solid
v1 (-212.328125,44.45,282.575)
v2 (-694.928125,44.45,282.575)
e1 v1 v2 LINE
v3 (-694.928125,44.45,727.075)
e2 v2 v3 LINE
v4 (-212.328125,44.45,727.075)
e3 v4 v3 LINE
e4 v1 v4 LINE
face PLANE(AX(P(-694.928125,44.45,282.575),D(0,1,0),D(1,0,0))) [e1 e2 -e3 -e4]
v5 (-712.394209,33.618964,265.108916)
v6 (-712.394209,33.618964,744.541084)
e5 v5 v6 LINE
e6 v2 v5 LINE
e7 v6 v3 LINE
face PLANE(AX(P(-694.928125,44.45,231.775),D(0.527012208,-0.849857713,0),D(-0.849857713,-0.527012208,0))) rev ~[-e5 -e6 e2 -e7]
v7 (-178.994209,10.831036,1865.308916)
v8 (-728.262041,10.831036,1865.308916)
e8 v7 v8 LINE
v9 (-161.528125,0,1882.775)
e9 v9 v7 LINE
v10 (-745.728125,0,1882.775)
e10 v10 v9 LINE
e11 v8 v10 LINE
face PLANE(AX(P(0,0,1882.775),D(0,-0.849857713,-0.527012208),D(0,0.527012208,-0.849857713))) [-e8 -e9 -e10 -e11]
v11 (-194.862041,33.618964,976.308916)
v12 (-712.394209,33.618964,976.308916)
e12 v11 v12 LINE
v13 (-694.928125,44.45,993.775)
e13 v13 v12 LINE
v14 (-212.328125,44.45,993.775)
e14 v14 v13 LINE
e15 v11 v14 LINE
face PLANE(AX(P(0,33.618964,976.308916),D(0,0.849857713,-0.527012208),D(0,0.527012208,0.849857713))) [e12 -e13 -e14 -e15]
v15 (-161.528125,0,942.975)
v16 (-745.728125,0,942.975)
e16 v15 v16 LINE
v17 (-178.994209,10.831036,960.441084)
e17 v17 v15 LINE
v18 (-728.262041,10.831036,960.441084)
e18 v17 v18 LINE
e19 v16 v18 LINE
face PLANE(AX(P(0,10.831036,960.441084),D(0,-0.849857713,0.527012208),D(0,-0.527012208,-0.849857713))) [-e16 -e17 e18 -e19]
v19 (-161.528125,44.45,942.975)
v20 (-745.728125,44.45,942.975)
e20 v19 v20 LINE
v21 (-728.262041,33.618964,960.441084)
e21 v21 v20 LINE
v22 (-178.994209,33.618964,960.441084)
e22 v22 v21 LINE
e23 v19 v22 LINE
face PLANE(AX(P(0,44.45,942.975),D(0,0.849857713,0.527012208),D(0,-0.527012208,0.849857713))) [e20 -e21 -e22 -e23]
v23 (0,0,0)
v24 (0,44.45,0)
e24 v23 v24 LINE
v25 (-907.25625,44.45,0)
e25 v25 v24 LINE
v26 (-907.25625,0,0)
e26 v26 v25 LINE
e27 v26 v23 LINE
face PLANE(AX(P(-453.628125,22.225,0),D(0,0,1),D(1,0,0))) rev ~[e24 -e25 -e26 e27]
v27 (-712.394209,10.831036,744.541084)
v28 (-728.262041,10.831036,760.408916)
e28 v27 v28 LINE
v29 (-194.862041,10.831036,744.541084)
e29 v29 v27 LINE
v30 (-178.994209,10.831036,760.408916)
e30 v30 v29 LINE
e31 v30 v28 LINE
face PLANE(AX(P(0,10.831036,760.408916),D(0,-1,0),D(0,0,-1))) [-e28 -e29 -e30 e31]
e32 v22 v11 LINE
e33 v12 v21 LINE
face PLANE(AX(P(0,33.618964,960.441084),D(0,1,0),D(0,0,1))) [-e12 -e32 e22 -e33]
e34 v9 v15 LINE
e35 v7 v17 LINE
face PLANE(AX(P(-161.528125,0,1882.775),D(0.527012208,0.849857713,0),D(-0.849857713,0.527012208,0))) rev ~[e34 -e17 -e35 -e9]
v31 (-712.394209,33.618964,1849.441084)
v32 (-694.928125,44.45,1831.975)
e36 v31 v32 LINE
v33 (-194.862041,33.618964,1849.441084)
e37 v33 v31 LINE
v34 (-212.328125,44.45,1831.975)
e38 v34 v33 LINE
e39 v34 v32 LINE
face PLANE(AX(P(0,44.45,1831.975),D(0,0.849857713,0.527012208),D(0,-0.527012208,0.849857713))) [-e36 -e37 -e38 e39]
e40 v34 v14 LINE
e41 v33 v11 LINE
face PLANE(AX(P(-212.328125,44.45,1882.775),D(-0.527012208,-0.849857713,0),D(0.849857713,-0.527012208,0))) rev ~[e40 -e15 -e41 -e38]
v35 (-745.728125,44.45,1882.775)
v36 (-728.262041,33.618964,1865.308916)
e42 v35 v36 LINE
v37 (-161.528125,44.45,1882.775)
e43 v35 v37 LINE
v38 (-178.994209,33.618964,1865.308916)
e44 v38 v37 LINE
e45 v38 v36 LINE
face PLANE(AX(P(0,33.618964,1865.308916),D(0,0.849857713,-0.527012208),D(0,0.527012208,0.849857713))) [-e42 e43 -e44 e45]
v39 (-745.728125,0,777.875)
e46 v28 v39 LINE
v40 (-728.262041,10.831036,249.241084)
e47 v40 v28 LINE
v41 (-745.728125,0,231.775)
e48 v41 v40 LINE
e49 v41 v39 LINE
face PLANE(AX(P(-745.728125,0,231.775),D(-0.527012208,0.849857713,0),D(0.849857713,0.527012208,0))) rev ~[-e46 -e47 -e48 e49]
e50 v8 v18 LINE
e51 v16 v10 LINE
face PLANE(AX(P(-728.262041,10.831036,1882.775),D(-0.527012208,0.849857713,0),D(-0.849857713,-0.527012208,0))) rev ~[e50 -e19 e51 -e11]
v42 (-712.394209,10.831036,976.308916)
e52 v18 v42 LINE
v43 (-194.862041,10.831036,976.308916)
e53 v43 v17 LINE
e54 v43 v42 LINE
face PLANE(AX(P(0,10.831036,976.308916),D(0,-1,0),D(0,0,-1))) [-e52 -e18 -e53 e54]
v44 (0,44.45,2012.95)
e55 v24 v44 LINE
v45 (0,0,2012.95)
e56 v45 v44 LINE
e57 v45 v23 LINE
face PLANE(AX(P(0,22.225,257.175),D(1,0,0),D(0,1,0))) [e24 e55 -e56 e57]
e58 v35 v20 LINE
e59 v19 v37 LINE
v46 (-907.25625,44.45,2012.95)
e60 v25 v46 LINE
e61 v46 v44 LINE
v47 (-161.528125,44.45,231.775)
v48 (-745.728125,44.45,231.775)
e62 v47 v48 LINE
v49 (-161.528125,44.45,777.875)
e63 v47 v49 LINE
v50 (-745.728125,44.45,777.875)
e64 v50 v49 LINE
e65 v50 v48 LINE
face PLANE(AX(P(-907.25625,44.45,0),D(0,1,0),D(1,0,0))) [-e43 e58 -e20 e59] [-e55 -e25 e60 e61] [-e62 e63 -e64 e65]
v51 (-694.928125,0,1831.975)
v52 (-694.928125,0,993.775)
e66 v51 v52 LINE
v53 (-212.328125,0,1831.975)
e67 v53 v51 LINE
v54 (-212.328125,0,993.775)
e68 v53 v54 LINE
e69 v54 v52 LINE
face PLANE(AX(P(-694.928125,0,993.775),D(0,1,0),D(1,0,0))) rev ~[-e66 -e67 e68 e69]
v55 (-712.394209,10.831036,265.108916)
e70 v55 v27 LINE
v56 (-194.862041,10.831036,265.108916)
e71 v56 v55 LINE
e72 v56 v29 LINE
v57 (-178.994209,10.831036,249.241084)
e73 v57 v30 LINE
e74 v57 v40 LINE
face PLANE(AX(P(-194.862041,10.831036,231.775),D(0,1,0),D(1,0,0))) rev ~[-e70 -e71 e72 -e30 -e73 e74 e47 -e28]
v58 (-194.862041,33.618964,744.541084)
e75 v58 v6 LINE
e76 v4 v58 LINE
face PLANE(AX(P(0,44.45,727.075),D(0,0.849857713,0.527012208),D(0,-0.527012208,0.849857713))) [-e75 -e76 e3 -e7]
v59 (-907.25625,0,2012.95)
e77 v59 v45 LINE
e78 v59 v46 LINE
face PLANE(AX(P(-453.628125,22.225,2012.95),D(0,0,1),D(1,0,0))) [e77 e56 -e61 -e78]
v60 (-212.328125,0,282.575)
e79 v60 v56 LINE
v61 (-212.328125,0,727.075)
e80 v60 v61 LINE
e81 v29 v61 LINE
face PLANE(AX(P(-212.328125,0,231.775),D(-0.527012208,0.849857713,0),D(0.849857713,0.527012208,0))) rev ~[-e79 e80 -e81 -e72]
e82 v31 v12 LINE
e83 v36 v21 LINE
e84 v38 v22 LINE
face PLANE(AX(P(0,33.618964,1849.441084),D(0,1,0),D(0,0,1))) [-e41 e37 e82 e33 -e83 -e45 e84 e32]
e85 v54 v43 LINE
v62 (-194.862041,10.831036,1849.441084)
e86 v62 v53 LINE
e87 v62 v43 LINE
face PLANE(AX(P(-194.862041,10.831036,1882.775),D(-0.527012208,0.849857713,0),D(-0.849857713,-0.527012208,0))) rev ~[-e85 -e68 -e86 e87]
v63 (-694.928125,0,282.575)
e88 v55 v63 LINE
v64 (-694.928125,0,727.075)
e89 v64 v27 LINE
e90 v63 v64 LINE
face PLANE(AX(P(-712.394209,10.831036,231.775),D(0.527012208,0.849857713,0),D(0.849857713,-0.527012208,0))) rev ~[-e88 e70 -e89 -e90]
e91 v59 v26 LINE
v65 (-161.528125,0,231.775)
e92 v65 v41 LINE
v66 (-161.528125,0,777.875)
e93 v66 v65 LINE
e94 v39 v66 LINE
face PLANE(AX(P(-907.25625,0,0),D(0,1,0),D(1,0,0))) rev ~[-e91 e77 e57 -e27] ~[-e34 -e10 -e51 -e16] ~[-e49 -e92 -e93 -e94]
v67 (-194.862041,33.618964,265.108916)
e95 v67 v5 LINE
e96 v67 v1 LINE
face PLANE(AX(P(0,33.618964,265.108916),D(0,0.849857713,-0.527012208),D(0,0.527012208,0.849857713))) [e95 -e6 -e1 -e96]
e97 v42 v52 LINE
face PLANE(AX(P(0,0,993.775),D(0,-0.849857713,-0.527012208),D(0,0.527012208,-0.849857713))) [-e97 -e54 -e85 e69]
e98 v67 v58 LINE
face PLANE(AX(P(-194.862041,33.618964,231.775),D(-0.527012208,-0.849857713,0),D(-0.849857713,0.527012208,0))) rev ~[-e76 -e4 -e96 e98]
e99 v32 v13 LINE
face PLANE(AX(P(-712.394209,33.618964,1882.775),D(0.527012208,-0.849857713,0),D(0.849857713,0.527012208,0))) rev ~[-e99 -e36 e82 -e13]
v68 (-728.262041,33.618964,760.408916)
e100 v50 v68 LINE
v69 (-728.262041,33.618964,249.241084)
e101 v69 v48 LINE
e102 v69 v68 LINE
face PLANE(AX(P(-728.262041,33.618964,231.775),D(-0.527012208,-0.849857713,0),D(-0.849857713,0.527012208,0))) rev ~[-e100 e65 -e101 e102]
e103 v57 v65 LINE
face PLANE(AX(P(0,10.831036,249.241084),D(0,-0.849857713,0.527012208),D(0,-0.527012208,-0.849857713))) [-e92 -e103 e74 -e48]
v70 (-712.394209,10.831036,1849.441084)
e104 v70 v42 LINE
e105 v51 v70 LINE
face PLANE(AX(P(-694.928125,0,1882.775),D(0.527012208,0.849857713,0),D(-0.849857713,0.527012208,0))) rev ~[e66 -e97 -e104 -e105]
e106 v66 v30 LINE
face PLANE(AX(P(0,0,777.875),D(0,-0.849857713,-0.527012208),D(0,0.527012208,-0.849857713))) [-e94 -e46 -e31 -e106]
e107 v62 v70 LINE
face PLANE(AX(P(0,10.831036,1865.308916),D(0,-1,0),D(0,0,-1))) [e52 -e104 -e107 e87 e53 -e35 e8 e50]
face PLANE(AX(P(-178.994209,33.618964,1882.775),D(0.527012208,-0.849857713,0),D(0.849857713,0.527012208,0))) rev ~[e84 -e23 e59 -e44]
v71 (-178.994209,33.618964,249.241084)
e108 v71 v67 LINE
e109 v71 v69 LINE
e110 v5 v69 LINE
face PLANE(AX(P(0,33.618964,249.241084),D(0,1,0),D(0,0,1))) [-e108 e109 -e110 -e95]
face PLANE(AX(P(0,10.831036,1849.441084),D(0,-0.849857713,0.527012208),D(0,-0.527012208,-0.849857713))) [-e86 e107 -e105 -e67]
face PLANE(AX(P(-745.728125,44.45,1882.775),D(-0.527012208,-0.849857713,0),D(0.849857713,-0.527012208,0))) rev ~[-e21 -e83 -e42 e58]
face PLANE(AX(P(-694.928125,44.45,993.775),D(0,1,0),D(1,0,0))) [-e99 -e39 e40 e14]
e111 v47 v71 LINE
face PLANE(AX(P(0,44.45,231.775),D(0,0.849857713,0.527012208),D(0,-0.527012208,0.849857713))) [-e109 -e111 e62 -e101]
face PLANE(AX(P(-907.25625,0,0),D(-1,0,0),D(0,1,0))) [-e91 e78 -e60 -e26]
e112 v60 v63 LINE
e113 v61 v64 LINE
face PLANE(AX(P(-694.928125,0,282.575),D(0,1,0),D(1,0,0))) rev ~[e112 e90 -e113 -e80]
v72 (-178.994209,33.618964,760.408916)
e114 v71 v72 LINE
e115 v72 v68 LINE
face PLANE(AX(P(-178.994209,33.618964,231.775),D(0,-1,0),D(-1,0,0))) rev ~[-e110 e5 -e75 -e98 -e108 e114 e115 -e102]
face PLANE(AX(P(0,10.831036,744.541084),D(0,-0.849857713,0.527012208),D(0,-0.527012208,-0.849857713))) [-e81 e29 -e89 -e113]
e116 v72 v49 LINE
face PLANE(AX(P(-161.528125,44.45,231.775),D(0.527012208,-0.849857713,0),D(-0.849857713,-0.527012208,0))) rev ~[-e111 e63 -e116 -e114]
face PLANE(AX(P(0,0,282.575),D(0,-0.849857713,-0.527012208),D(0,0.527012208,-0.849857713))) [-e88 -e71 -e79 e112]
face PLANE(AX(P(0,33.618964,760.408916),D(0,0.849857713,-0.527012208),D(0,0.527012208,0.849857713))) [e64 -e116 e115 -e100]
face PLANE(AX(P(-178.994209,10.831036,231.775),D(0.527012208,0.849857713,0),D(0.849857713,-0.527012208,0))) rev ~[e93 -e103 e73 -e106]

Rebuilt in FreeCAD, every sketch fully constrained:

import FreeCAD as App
import Part
import Sketcher
Q = App.Units.Quantity

doc = App.newDocument("Part")
body = doc.addObject("PartDesign::Body", "Body")

sketch1 = body.newObject("Sketcher::SketchObject", "Sketch")
sketch1.AttachmentSupport = (doc.getObject("XY_Plane"), [""])
sketch1.MapMode = "FlatFace"
sketch1.addGeometry([
    Part.LineSegment(App.Vector(-907.25625, 44.45, 0), App.Vector(-907.25625, 0, 0)),
    Part.LineSegment(App.Vector(-907.25625, 0, 0), App.Vector(0, 0, 0)),
    Part.LineSegment(App.Vector(0, 0, 0), App.Vector(0, 44.45, 0)),
    Part.LineSegment(App.Vector(0, 44.45, 0), App.Vector(-907.25625, 44.45, 0)),
], False)
sketch1.addConstraint([
    Sketcher.Constraint("Coincident", 0, 2, 1, 1),
    Sketcher.Constraint("Coincident", 1, 2, 2, 1),
    Sketcher.Constraint("Coincident", 2, 2, 3, 1),
    Sketcher.Constraint("Coincident", 3, 2, 0, 1),
    Sketcher.Constraint("Vertical", 0),
    Sketcher.Constraint("Horizontal", 1),
    Sketcher.Constraint("Vertical", 2),
    Sketcher.Constraint("Horizontal", 3),
    Sketcher.Constraint("Coincident", 1, 2, -1, 1),
    Sketcher.Constraint("DistanceY", 0, 2, 0, 1, Q("1.75 in")),
    Sketcher.Constraint("DistanceX", 1, 1, 1, 2, Q("35.71875 in")),
])
pad1 = body.newObject("PartDesign::Pad", "Pad")
pad1.Profile = sketch1
pad1.Length = Q("79.25 in")

sketch2 = body.newObject("Sketcher::SketchObject", "Sketch001")
sketch2.AttachmentSupport = (doc.getObject("XZ_Plane"), [""])
sketch2.MapMode = "FlatFace"
sketch2.addGeometry([
    Part.LineSegment(App.Vector(-745.728125, 1882.775, 0), App.Vector(-745.728125, 942.975, 0)),
    Part.LineSegment(App.Vector(-745.728125, 942.975, 0), App.Vector(-161.528125, 942.975, 0)),
    Part.LineSegment(App.Vector(-161.528125, 942.975, 0), App.Vector(-161.528125, 1882.775, 0)),
    Part.LineSegment(App.Vector(-161.528125, 1882.775, 0), App.Vector(-745.728125, 1882.775, 0)),
    Part.LineSegment(App.Vector(-745.728125, 777.875, 0), App.Vector(-745.728125, 231.775, 0)),
    Part.LineSegment(App.Vector(-745.728125, 231.775, 0), App.Vector(-161.528125, 231.775, 0)),
    Part.LineSegment(App.Vector(-161.528125, 231.775, 0), App.Vector(-161.528125, 777.875, 0)),
    Part.LineSegment(App.Vector(-161.528125, 777.875, 0), App.Vector(-745.728125, 777.875, 0)),
], False)
sketch2.addConstraint([
    Sketcher.Constraint("Coincident", 0, 2, 1, 1),
    Sketcher.Constraint("Coincident", 1, 2, 2, 1),
    Sketcher.Constraint("Coincident", 2, 2, 3, 1),
    Sketcher.Constraint("Coincident", 3, 2, 0, 1),
    Sketcher.Constraint("Coincident", 4, 2, 5, 1),
    Sketcher.Constraint("Coincident", 5, 2, 6, 1),
    Sketcher.Constraint("Coincident", 6, 2, 7, 1),
    Sketcher.Constraint("Coincident", 7, 2, 4, 1),
    Sketcher.Constraint("Vertical", 0),
    Sketcher.Constraint("Horizontal", 1),
    Sketcher.Constraint("Vertical", 2),
    Sketcher.Constraint("Horizontal", 3),
    Sketcher.Constraint("Vertical", 4),
    Sketcher.Constraint("Horizontal", 5),
    Sketcher.Constraint("Vertical", 6),
    Sketcher.Constraint("Horizontal", 7),
    Sketcher.Constraint("Vertical", 3, 2, 4, 2),
    Sketcher.Constraint("Vertical", 2, 2, 5, 2),
    Sketcher.Constraint("DistanceX", 1, 1, 1, 2, Q("23 in")),
    Sketcher.Constraint("DistanceY", 0, 2, 0, 1, Q("37 in")),
    Sketcher.Constraint("DistanceY", 4, 2, 4, 1, Q("21.5 in")),
    Sketcher.Constraint("DistanceY", 4, 2, 0, 2, Q("28 in")),
    Sketcher.Constraint("DistanceX", 0, 2, -1, 1, Q("29.359375 in")),
    Sketcher.Constraint("DistanceY", -1, 1, 0, 2, Q("37.125 in")),
])
pocket1 = body.newObject("PartDesign::Pocket", "Pocket")
pocket1.Profile = sketch2
pocket1.Type = "ThroughAll"

sketch3 = body.newObject("Sketcher::SketchObject", "Sketch002")
sketch3.AttachmentSupport = (doc.getObject("XY_Plane"), [""])
sketch3.MapMode = "FlatFace"
sketch3.AttachmentOffset = App.Placement(App.Vector(0, 0, 74.125 * 25.4), App.Rotation())
sketch3.addGeometry([
    Part.LineSegment(App.Vector(-694.928125, 0, 0), App.Vector(-712.394209, 10.831036, 0)),
    Part.LineSegment(App.Vector(-712.394209, 10.831036, 0), App.Vector(-728.262041, 10.831036, 0)),
    Part.LineSegment(App.Vector(-728.262041, 10.831036, 0), App.Vector(-745.728125, 0, 0)),
    Part.LineSegment(App.Vector(-745.728125, 0, 0), App.Vector(-745.728125, 44.45, 0)),
    Part.LineSegment(App.Vector(-745.728125, 44.45, 0), App.Vector(-728.262041, 33.618964, 0)),
    Part.LineSegment(App.Vector(-728.262041, 33.618964, 0), App.Vector(-712.394209, 33.618964, 0)),
    Part.LineSegment(App.Vector(-712.394209, 33.618964, 0), App.Vector(-694.928125, 44.45, 0)),
    Part.LineSegment(App.Vector(-694.928125, 44.45, 0), App.Vector(-694.928125, 0, 0)),
    Part.LineSegment(App.Vector(-212.328125, 44.45, 0), App.Vector(-194.862041, 33.618964, 0)),
    Part.LineSegment(App.Vector(-194.862041, 33.618964, 0), App.Vector(-178.994209, 33.618964, 0)),
    Part.LineSegment(App.Vector(-178.994209, 33.618964, 0), App.Vector(-161.528125, 44.45, 0)),
    Part.LineSegment(App.Vector(-161.528125, 44.45, 0), App.Vector(-161.528125, 0, 0)),
    Part.LineSegment(App.Vector(-161.528125, 0, 0), App.Vector(-178.994209, 10.831036, 0)),
    Part.LineSegment(App.Vector(-178.994209, 10.831036, 0), App.Vector(-194.862041, 10.831036, 0)),
    Part.LineSegment(App.Vector(-194.862041, 10.831036, 0), App.Vector(-212.328125, 0, 0)),
    Part.LineSegment(App.Vector(-212.328125, 0, 0), App.Vector(-212.328125, 44.45, 0)),
], False)
sketch3.addConstraint([
    Sketcher.Constraint("Coincident", 0, 2, 1, 1),
    Sketcher.Constraint("Coincident", 1, 2, 2, 1),
    Sketcher.Constraint("Coincident", 2, 2, 3, 1),
    Sketcher.Constraint("Coincident", 3, 2, 4, 1),
    Sketcher.Constraint("Coincident", 4, 2, 5, 1),
    Sketcher.Constraint("Coincident", 5, 2, 6, 1),
    Sketcher.Constraint("Coincident", 6, 2, 7, 1),
    Sketcher.Constraint("Coincident", 7, 2, 0, 1),
    Sketcher.Constraint("Coincident", 8, 2, 9, 1),
    Sketcher.Constraint("Coincident", 9, 2, 10, 1),
    Sketcher.Constraint("Coincident", 10, 2, 11, 1),
    Sketcher.Constraint("Coincident", 11, 2, 12, 1),
    Sketcher.Constraint("Coincident", 12, 2, 13, 1),
    Sketcher.Constraint("Coincident", 13, 2, 14, 1),
    Sketcher.Constraint("Coincident", 14, 2, 15, 1),
    Sketcher.Constraint("Coincident", 15, 2, 8, 1),
    Sketcher.Constraint("Horizontal", 1),
    Sketcher.Constraint("Vertical", 3),
    Sketcher.Constraint("Horizontal", 5),
    Sketcher.Constraint("Vertical", 7),
    Sketcher.Constraint("Horizontal", 9),
    Sketcher.Constraint("Vertical", 11),
    Sketcher.Constraint("Horizontal", 13),
    Sketcher.Constraint("Vertical", 15),
    Sketcher.Constraint("PointOnObject", 2, 2, -1),
    Sketcher.Constraint("PointOnObject", 7, 2, -1),
    Sketcher.Constraint("PointOnObject", 11, 2, -1),
    Sketcher.Constraint("PointOnObject", 14, 2, -1),
    Sketcher.Constraint("Parallel", 0, 4),
    Sketcher.Constraint("Parallel", 2, 6),
    Sketcher.Constraint("Parallel", 4, 8),
    Sketcher.Constraint("Parallel", 6, 10),
    Sketcher.Constraint("Parallel", 8, 12),
    Sketcher.Constraint("Parallel", 10, 14),
    Sketcher.Constraint("Horizontal", 3, 2, 6, 2),
    Sketcher.Constraint("Horizontal", 5, 2, 8, 2),
    Sketcher.Constraint("Horizontal", 6, 2, 10, 2),
    Sketcher.Constraint("Horizontal", 1, 2, 12, 2),
    Sketcher.Constraint("Horizontal", 10, 2, 15, 2),
    Sketcher.Constraint("Vertical", 1, 2, 4, 2),
    Sketcher.Constraint("Vertical", 0, 2, 5, 2),
    Sketcher.Constraint("Equal", 5, 9),
    Sketcher.Constraint("DistanceX", 3, 2, 6, 2, Q("2 in")),
    Sketcher.Constraint("DistanceX", 4, 2, 8, 2, Q("21 in")),
    Sketcher.Constraint("DistanceY", 3, 1, 3, 2, Q("1.75 in")),
    Sketcher.Constraint("DistanceX", 2, 2, -1, 1, Q("29.359375 in")),
    Sketcher.Constraint("DistanceX", 1, 2, 1, 1, Q("15.867833 mm")),
    Sketcher.Constraint("DistanceY", 1, 2, 4, 2, Q("22.787929 mm")),
])
pad2 = body.newObject("PartDesign::Pad", "Pad001")
pad2.Profile = sketch3
pad2.Length = Q("37 in")
pad2.Reversed = True

sketch4 = body.newObject("Sketcher::SketchObject", "Sketch003")
sketch4.AttachmentSupport = (doc.getObject("XY_Plane"), [""])
sketch4.MapMode = "FlatFace"
sketch4.AttachmentOffset = App.Placement(App.Vector(0, 0, 9.125 * 25.4), App.Rotation())
sketch4.addGeometry([
    Part.LineSegment(App.Vector(-745.728125, 0, 0), App.Vector(-728.262041, 10.831036, 0)),
    Part.LineSegment(App.Vector(-728.262041, 10.831036, 0), App.Vector(-712.394209, 10.831036, 0)),
    Part.LineSegment(App.Vector(-712.394209, 10.831036, 0), App.Vector(-694.928125, 0, 0)),
    Part.LineSegment(App.Vector(-694.928125, 0, 0), App.Vector(-694.928125, 44.45, 0)),
    Part.LineSegment(App.Vector(-694.928125, 44.45, 0), App.Vector(-712.394209, 33.618964, 0)),
    Part.LineSegment(App.Vector(-712.394209, 33.618964, 0), App.Vector(-728.262041, 33.618964, 0)),
    Part.LineSegment(App.Vector(-728.262041, 33.618964, 0), App.Vector(-745.728125, 44.45, 0)),
    Part.LineSegment(App.Vector(-745.728125, 44.45, 0), App.Vector(-745.728125, 0, 0)),
    Part.LineSegment(App.Vector(-212.328125, 44.45, 0), App.Vector(-212.328125, 0, 0)),
    Part.LineSegment(App.Vector(-212.328125, 0, 0), App.Vector(-194.862041, 10.831036, 0)),
    Part.LineSegment(App.Vector(-194.862041, 10.831036, 0), App.Vector(-178.994209, 10.831036, 0)),
    Part.LineSegment(App.Vector(-178.994209, 10.831036, 0), App.Vector(-161.528125, 0, 0)),
    Part.LineSegment(App.Vector(-161.528125, 0, 0), App.Vector(-161.528125, 44.45, 0)),
    Part.LineSegment(App.Vector(-161.528125, 44.45, 0), App.Vector(-178.994209, 33.618964, 0)),
    Part.LineSegment(App.Vector(-178.994209, 33.618964, 0), App.Vector(-194.862041, 33.618964, 0)),
    Part.LineSegment(App.Vector(-194.862041, 33.618964, 0), App.Vector(-212.328125, 44.45, 0)),
], False)
sketch4.addConstraint([
    Sketcher.Constraint("Coincident", 0, 2, 1, 1),
    Sketcher.Constraint("Coincident", 1, 2, 2, 1),
    Sketcher.Constraint("Coincident", 2, 2, 3, 1),
    Sketcher.Constraint("Coincident", 3, 2, 4, 1),
    Sketcher.Constraint("Coincident", 4, 2, 5, 1),
    Sketcher.Constraint("Coincident", 5, 2, 6, 1),
    Sketcher.Constraint("Coincident", 6, 2, 7, 1),
    Sketcher.Constraint("Coincident", 7, 2, 0, 1),
    Sketcher.Constraint("Coincident", 8, 2, 9, 1),
    Sketcher.Constraint("Coincident", 9, 2, 10, 1),
    Sketcher.Constraint("Coincident", 10, 2, 11, 1),
    Sketcher.Constraint("Coincident", 11, 2, 12, 1),
    Sketcher.Constraint("Coincident", 12, 2, 13, 1),
    Sketcher.Constraint("Coincident", 13, 2, 14, 1),
    Sketcher.Constraint("Coincident", 14, 2, 15, 1),
    Sketcher.Constraint("Coincident", 15, 2, 8, 1),
    Sketcher.Constraint("Horizontal", 1),
    Sketcher.Constraint("Vertical", 3),
    Sketcher.Constraint("Horizontal", 5),
    Sketcher.Constraint("Vertical", 7),
    Sketcher.Constraint("Vertical", 8),
    Sketcher.Constraint("Horizontal", 10),
    Sketcher.Constraint("Vertical", 12),
    Sketcher.Constraint("Horizontal", 14),
    Sketcher.Constraint("PointOnObject", 2, 2, -1),
    Sketcher.Constraint("PointOnObject", 7, 2, -1),
    Sketcher.Constraint("PointOnObject", 8, 2, -1),
    Sketcher.Constraint("PointOnObject", 11, 2, -1),
    Sketcher.Constraint("Parallel", 0, 4),
    Sketcher.Constraint("Parallel", 2, 6),
    Sketcher.Constraint("Parallel", 4, 9),
    Sketcher.Constraint("Parallel", 6, 11),
    Sketcher.Constraint("Parallel", 9, 13),
    Sketcher.Constraint("Parallel", 11, 15),
    Sketcher.Constraint("Horizontal", 3, 2, 6, 2),
    Sketcher.Constraint("Horizontal", 1, 2, 9, 2),
    Sketcher.Constraint("Horizontal", 6, 2, 12, 2),
    Sketcher.Constraint("Horizontal", 5, 2, 13, 2),
    Sketcher.Constraint("Horizontal", 12, 2, 15, 2),
    Sketcher.Constraint("Vertical", 1, 2, 4, 2),
    Sketcher.Constraint("Vertical", 0, 2, 5, 2),
    Sketcher.Constraint("Equal", 5, 10),
    Sketcher.Constraint("DistanceX", 6, 2, 3, 2, Q("2 in")),
    Sketcher.Constraint("DistanceX", 2, 2, 8, 2, Q("19 in")),
    Sketcher.Constraint("DistanceY", 3, 1, 3, 2, Q("1.75 in")),
    Sketcher.Constraint("DistanceX", 2, 2, -1, 1, Q("27.359375 in")),
    Sketcher.Constraint("DistanceX", 1, 1, 1, 2, Q("15.867833 mm")),
    Sketcher.Constraint("DistanceY", 1, 2, 4, 2, Q("22.787929 mm")),
])
pad3 = body.newObject("PartDesign::Pad", "Pad002")
pad3.Profile = sketch4
pad3.Type = "UpToLast"

sketch5 = body.newObject("Sketcher::SketchObject", "Sketch004")
sketch5.AttachmentSupport = (doc.getObject("XZ_Plane"), [""])
sketch5.MapMode = "FlatFace"
sketch5.addGeometry([
    Part.LineSegment(App.Vector(-745.728125, 1882.775, 0), App.Vector(-453.628125, 1590.675, 0)),
    Part.LineSegment(App.Vector(-453.628125, 1590.675, 0), App.Vector(-161.528125, 1882.775, 0)),
    Part.LineSegment(App.Vector(-161.528125, 1882.775, 0), App.Vector(-745.728125, 1882.775, 0)),
    Part.LineSegment(App.Vector(-161.528125, 942.975, 0), App.Vector(-453.628125, 1235.075, 0)),
    Part.LineSegment(App.Vector(-453.628125, 1235.075, 0), App.Vector(-745.728125, 942.975, 0)),
    Part.LineSegment(App.Vector(-745.728125, 942.975, 0), App.Vector(-161.528125, 942.975, 0)),
    Part.LineSegment(App.Vector(-161.528125, 777.875, 0), App.Vector(-745.728125, 777.875, 0)),
    Part.LineSegment(App.Vector(-745.728125, 777.875, 0), App.Vector(-472.678125, 504.825, 0)),
    Part.LineSegment(App.Vector(-472.678125, 504.825, 0), App.Vector(-745.728125, 231.775, 0)),
    Part.LineSegment(App.Vector(-745.728125, 231.775, 0), App.Vector(-161.528125, 231.775, 0)),
    Part.LineSegment(App.Vector(-161.528125, 231.775, 0), App.Vector(-434.578125, 504.825, 0)),
    Part.LineSegment(App.Vector(-434.578125, 504.825, 0), App.Vector(-161.528125, 777.875, 0)),
], False)
sketch5.addConstraint([
    Sketcher.Constraint("Coincident", 0, 2, 1, 1),
    Sketcher.Constraint("Coincident", 1, 2, 2, 1),
    Sketcher.Constraint("Coincident", 2, 2, 0, 1),
    Sketcher.Constraint("Coincident", 3, 2, 4, 1),
    Sketcher.Constraint("Coincident", 4, 2, 5, 1),
    Sketcher.Constraint("Coincident", 5, 2, 3, 1),
    Sketcher.Constraint("Coincident", 6, 2, 7, 1),
    Sketcher.Constraint("Coincident", 7, 2, 8, 1),
    Sketcher.Constraint("Coincident", 8, 2, 9, 1),
    Sketcher.Constraint("Coincident", 9, 2, 10, 1),
    Sketcher.Constraint("Coincident", 10, 2, 11, 1),
    Sketcher.Constraint("Coincident", 11, 2, 6, 1),
    Sketcher.Constraint("Horizontal", 2),
    Sketcher.Constraint("Horizontal", 5),
    Sketcher.Constraint("Horizontal", 6),
    Sketcher.Constraint("Horizontal", 9),
    Sketcher.Constraint("Perpendicular", 0, 1),
    Sketcher.Constraint("Perpendicular", 1, 3),
    Sketcher.Constraint("Perpendicular", 3, 4),
    Sketcher.Constraint("Perpendicular", 4, 7),
    Sketcher.Constraint("Perpendicular", 7, 8),
    Sketcher.Constraint("Perpendicular", 8, 10),
    Sketcher.Constraint("Perpendicular", 10, 11),
    Sketcher.Constraint("Horizontal", 7, 2, 10, 2),
    Sketcher.Constraint("Vertical", 0, 2, 3, 2),
    Sketcher.Constraint("Vertical", 2, 2, 4, 2),
    Sketcher.Constraint("Vertical", 1, 2, 5, 2),
    Sketcher.Constraint("Vertical", 4, 2, 6, 2),
    Sketcher.Constraint("Vertical", 6, 2, 8, 2),
    Sketcher.Constraint("Vertical", 5, 2, 9, 2),
    Sketcher.Constraint("DistanceX", 2, 2, 2, 1, Q("23 in")),
    Sketcher.Constraint("DistanceY", 3, 2, 0, 2, Q("14 in")),
    Sketcher.Constraint("DistanceY", 6, 2, 3, 2, Q("18 in")),
    Sketcher.Constraint("DistanceY", 8, 2, 4, 2, Q("28 in")),
    Sketcher.Constraint("DistanceX", 0, 2, -1, 1, Q("17.859375 in")),
    Sketcher.Constraint("DistanceY", -1, 1, 0, 2, Q("62.625 in")),
])
pocket2 = body.newObject("PartDesign::Pocket", "Pocket001")
pocket2.Profile = sketch5
pocket2.Type = "ThroughAll"
body2 = doc.addObject("PartDesign::Body", "Body001")

sketch6 = body2.newObject("Sketcher::SketchObject", "Sketch005")
sketch6.AttachmentSupport = (doc.getObject("YZ_Plane001"), [""])
sketch6.MapMode = "FlatFace"
sketch6.addGeometry([
    Part.LineSegment(App.Vector(44.45, 1882.775, 0), App.Vector(0, 1882.775, 0)),
    Part.LineSegment(App.Vector(0, 1882.775, 0), App.Vector(10.831036, 1865.308916, 0)),
    Part.LineSegment(App.Vector(10.831036, 1865.308916, 0), App.Vector(10.831036, 1849.441084, 0)),
    Part.LineSegment(App.Vector(10.831036, 1849.441084, 0), App.Vector(0, 1831.975, 0)),
    Part.LineSegment(App.Vector(0, 1831.975, 0), App.Vector(44.45, 1831.975, 0)),
    Part.LineSegment(App.Vector(44.45, 1831.975, 0), App.Vector(33.618964, 1849.441084, 0)),
    Part.LineSegment(App.Vector(33.618964, 1849.441084, 0), App.Vector(33.618964, 1865.308916, 0)),
    Part.LineSegment(App.Vector(33.618964, 1865.308916, 0), App.Vector(44.45, 1882.775, 0)),
], False)
sketch6.addConstraint([
    Sketcher.Constraint("Coincident", 0, 2, 1, 1),
    Sketcher.Constraint("Coincident", 1, 2, 2, 1),
    Sketcher.Constraint("Coincident", 2, 2, 3, 1),
    Sketcher.Constraint("Coincident", 3, 2, 4, 1),
    Sketcher.Constraint("Coincident", 4, 2, 5, 1),
    Sketcher.Constraint("Coincident", 5, 2, 6, 1),
    Sketcher.Constraint("Coincident", 6, 2, 7, 1),
    Sketcher.Constraint("Coincident", 7, 2, 0, 1),
    Sketcher.Constraint("Horizontal", 0),
    Sketcher.Constraint("Vertical", 2),
    Sketcher.Constraint("Horizontal", 4),
    Sketcher.Constraint("Vertical", 6),
    Sketcher.Constraint("PointOnObject", 0, 2, -2),
    Sketcher.Constraint("PointOnObject", 3, 2, -2),
    Sketcher.Constraint("Parallel", 1, 5),
    Sketcher.Constraint("Parallel", 3, 7),
    Sketcher.Constraint("Horizontal", 2, 2, 5, 2),
    Sketcher.Constraint("Horizontal", 1, 2, 6, 2),
    Sketcher.Constraint("Vertical", 4, 2, 7, 2),
    Sketcher.Constraint("DistanceY", 3, 2, 0, 2, Q("2 in")),
    Sketcher.Constraint("DistanceX", 0, 2, 0, 1, Q("1.75 in")),
    Sketcher.Constraint("DistanceY", -1, 1, 0, 2, Q("74.125 in")),
    Sketcher.Constraint("DistanceY", 2, 2, 2, 1, Q("15.867833 mm")),
    Sketcher.Constraint("DistanceX", 2, 2, 5, 2, Q("22.787929 mm")),
])
pad4 = body2.newObject("PartDesign::Pad", "Pad003")
pad4.Profile = sketch6
pad4.Length = Q("35.71875 in")
pad4.Reversed = True
body3 = doc.addObject("PartDesign::Body", "Body002")

sketch7 = body3.newObject("Sketcher::SketchObject", "Sketch006")
sketch7.AttachmentSupport = (doc.getObject("YZ_Plane002"), [""])
sketch7.MapMode = "FlatFace"
sketch7.addGeometry([
    Part.LineSegment(App.Vector(10.831036, 960.441084, 0), App.Vector(0, 942.975, 0)),
    Part.LineSegment(App.Vector(0, 942.975, 0), App.Vector(44.45, 942.975, 0)),
    Part.LineSegment(App.Vector(44.45, 942.975, 0), App.Vector(33.618964, 960.441084, 0)),
    Part.LineSegment(App.Vector(33.618964, 960.441084, 0), App.Vector(33.618964, 976.308916, 0)),
    Part.LineSegment(App.Vector(33.618964, 976.308916, 0), App.Vector(44.45, 993.775, 0)),
    Part.LineSegment(App.Vector(44.45, 993.775, 0), App.Vector(0, 993.775, 0)),
    Part.LineSegment(App.Vector(0, 993.775, 0), App.Vector(10.831036, 976.308916, 0)),
    Part.LineSegment(App.Vector(10.831036, 976.308916, 0), App.Vector(10.831036, 960.441084, 0)),
], False)
sketch7.addConstraint([
    Sketcher.Constraint("Coincident", 0, 2, 1, 1),
    Sketcher.Constraint("Coincident", 1, 2, 2, 1),
    Sketcher.Constraint("Coincident", 2, 2, 3, 1),
    Sketcher.Constraint("Coincident", 3, 2, 4, 1),
    Sketcher.Constraint("Coincident", 4, 2, 5, 1),
    Sketcher.Constraint("Coincident", 5, 2, 6, 1),
    Sketcher.Constraint("Coincident", 6, 2, 7, 1),
    Sketcher.Constraint("Coincident", 7, 2, 0, 1),
    Sketcher.Constraint("Horizontal", 1),
    Sketcher.Constraint("Vertical", 3),
    Sketcher.Constraint("Horizontal", 5),
    Sketcher.Constraint("Vertical", 7),
    Sketcher.Constraint("PointOnObject", 0, 2, -2),
    Sketcher.Constraint("PointOnObject", 5, 2, -2),
    Sketcher.Constraint("Parallel", 0, 4),
    Sketcher.Constraint("Parallel", 2, 6),
    Sketcher.Constraint("Horizontal", 3, 2, 6, 2),
    Sketcher.Constraint("Horizontal", 2, 2, 7, 2),
    Sketcher.Constraint("Vertical", 1, 2, 4, 2),
    Sketcher.Constraint("DistanceY", 1, 2, 4, 2, Q("2 in")),
    Sketcher.Constraint("DistanceX", 1, 1, 1, 2, Q("1.75 in")),
    Sketcher.Constraint("DistanceY", -1, 1, 0, 2, Q("37.125 in")),
    Sketcher.Constraint("DistanceY", 3, 1, 3, 2, Q("15.867833 mm")),
    Sketcher.Constraint("DistanceX", 6, 2, 3, 2, Q("22.787929 mm")),
])
pad5 = body3.newObject("PartDesign::Pad", "Pad004")
pad5.Profile = sketch7
pad5.Length = Q("35.71875 in")
pad5.Reversed = True
body4 = doc.addObject("PartDesign::Body", "Body003")

sketch8 = body4.newObject("Sketcher::SketchObject", "Sketch007")
sketch8.AttachmentSupport = (doc.getObject("YZ_Plane003"), [""])
sketch8.MapMode = "FlatFace"
sketch8.addGeometry([
    Part.LineSegment(App.Vector(33.618964, 744.541084, 0), App.Vector(33.618964, 760.408916, 0)),
    Part.LineSegment(App.Vector(33.618964, 760.408916, 0), App.Vector(44.45, 777.875, 0)),
    Part.LineSegment(App.Vector(44.45, 777.875, 0), App.Vector(0, 777.875, 0)),
    Part.LineSegment(App.Vector(0, 777.875, 0), App.Vector(10.831036, 760.408916, 0)),
    Part.LineSegment(App.Vector(10.831036, 760.408916, 0), App.Vector(10.831036, 744.541084, 0)),
    Part.LineSegment(App.Vector(10.831036, 744.541084, 0), App.Vector(0, 727.075, 0)),
    Part.LineSegment(App.Vector(0, 727.075, 0), App.Vector(44.45, 727.075, 0)),
    Part.LineSegment(App.Vector(44.45, 727.075, 0), App.Vector(33.618964, 744.541084, 0)),
], False)
sketch8.addConstraint([
    Sketcher.Constraint("Coincident", 0, 2, 1, 1),
    Sketcher.Constraint("Coincident", 1, 2, 2, 1),
    Sketcher.Constraint("Coincident", 2, 2, 3, 1),
    Sketcher.Constraint("Coincident", 3, 2, 4, 1),
    Sketcher.Constraint("Coincident", 4, 2, 5, 1),
    Sketcher.Constraint("Coincident", 5, 2, 6, 1),
    Sketcher.Constraint("Coincident", 6, 2, 7, 1),
    Sketcher.Constraint("Coincident", 7, 2, 0, 1),
    Sketcher.Constraint("Vertical", 0),
    Sketcher.Constraint("Horizontal", 2),
    Sketcher.Constraint("Vertical", 4),
    Sketcher.Constraint("Horizontal", 6),
    Sketcher.Constraint("PointOnObject", 2, 2, -2),
    Sketcher.Constraint("PointOnObject", 5, 2, -2),
    Sketcher.Constraint("Parallel", 1, 5),
    Sketcher.Constraint("Parallel", 3, 7),
    Sketcher.Constraint("Horizontal", 0, 2, 3, 2),
    Sketcher.Constraint("Horizontal", 4, 2, 7, 2),
    Sketcher.Constraint("Vertical", 1, 2, 6, 2),
    Sketcher.Constraint("DistanceY", 5, 2, 2, 2, Q("2 in")),
    Sketcher.Constraint("DistanceX", 2, 2, 2, 1, Q("1.75 in")),
    Sketcher.Constraint("DistanceY", -1, 1, 1, 2, Q("30.625 in")),
    Sketcher.Constraint("DistanceY", 0, 1, 0, 2, Q("15.867833 mm")),
    Sketcher.Constraint("DistanceX", 3, 2, 0, 2, Q("22.787929 mm")),
])
pad6 = body4.newObject("PartDesign::Pad", "Pad005")
pad6.Profile = sketch8
pad6.Length = Q("35.71875 in")
pad6.Reversed = True
body5 = doc.addObject("PartDesign::Body", "Body004")

sketch9 = body5.newObject("Sketcher::SketchObject", "Sketch008")
sketch9.AttachmentSupport = (doc.getObject("YZ_Plane004"), [""])
sketch9.MapMode = "FlatFace"
sketch9.addGeometry([
    Part.LineSegment(App.Vector(44.45, 231.775, 0), App.Vector(33.618964, 249.241084, 0)),
    Part.LineSegment(App.Vector(33.618964, 249.241084, 0), App.Vector(33.618964, 265.108916, 0)),
    Part.LineSegment(App.Vector(33.618964, 265.108916, 0), App.Vector(44.45, 282.575, 0)),
    Part.LineSegment(App.Vector(44.45, 282.575, 0), App.Vector(0, 282.575, 0)),
    Part.LineSegment(App.Vector(0, 282.575, 0), App.Vector(10.831036, 265.108916, 0)),
    Part.LineSegment(App.Vector(10.831036, 265.108916, 0), App.Vector(10.831036, 249.241084, 0)),
    Part.LineSegment(App.Vector(10.831036, 249.241084, 0), App.Vector(0, 231.775, 0)),
    Part.LineSegment(App.Vector(0, 231.775, 0), App.Vector(44.45, 231.775, 0)),
], False)
sketch9.addConstraint([
    Sketcher.Constraint("Coincident", 0, 2, 1, 1),
    Sketcher.Constraint("Coincident", 1, 2, 2, 1),
    Sketcher.Constraint("Coincident", 2, 2, 3, 1),
    Sketcher.Constraint("Coincident", 3, 2, 4, 1),
    Sketcher.Constraint("Coincident", 4, 2, 5, 1),
    Sketcher.Constraint("Coincident", 5, 2, 6, 1),
    Sketcher.Constraint("Coincident", 6, 2, 7, 1),
    Sketcher.Constraint("Coincident", 7, 2, 0, 1),
    Sketcher.Constraint("Vertical", 1),
    Sketcher.Constraint("Horizontal", 3),
    Sketcher.Constraint("Vertical", 5),
    Sketcher.Constraint("Horizontal", 7),
    Sketcher.Constraint("PointOnObject", 3, 2, -2),
    Sketcher.Constraint("PointOnObject", 6, 2, -2),
    Sketcher.Constraint("Parallel", 0, 4),
    Sketcher.Constraint("Parallel", 2, 6),
    Sketcher.Constraint("Horizontal", 1, 2, 4, 2),
    Sketcher.Constraint("Horizontal", 0, 2, 5, 2),
    Sketcher.Constraint("Vertical", 2, 2, 7, 2),
    Sketcher.Constraint("DistanceY", 6, 2, 3, 2, Q("2 in")),
    Sketcher.Constraint("DistanceX", 3, 2, 3, 1, Q("1.75 in")),
    Sketcher.Constraint("DistanceY", -1, 1, 2, 2, Q("11.125 in")),
    Sketcher.Constraint("DistanceY", 1, 1, 1, 2, Q("15.867833 mm")),
    Sketcher.Constraint("DistanceX", 4, 2, 1, 2, Q("22.787929 mm")),
])
pad7 = body5.newObject("PartDesign::Pad", "Pad006")
pad7.Profile = sketch9
pad7.Length = Q("35.71875 in")
pad7.Reversed = True
body6 = doc.addObject("PartDesign::Body", "Body005")
body6.AllowCompound = True

sketch10 = body6.newObject("Sketcher::SketchObject", "Sketch009")
sketch10.AttachmentSupport = (doc.getObject("XZ_Plane005"), [""])
sketch10.MapMode = "FlatFace"
sketch10.addGeometry([
    Part.LineSegment(App.Vector(-745.728125, 777.875, 0), App.Vector(-745.728125, 231.775, 0)),
    Part.LineSegment(App.Vector(-745.728125, 231.775, 0), App.Vector(-472.678125, 504.825, 0)),
    Part.LineSegment(App.Vector(-472.678125, 504.825, 0), App.Vector(-745.728125, 777.875, 0)),
    Part.LineSegment(App.Vector(-161.528125, 777.875, 0), App.Vector(-434.578125, 504.825, 0)),
    Part.LineSegment(App.Vector(-434.578125, 504.825, 0), App.Vector(-161.528125, 231.775, 0)),
    Part.LineSegment(App.Vector(-161.528125, 231.775, 0), App.Vector(-161.528125, 777.875, 0)),
    Part.LineSegment(App.Vector(-453.628125, 523.875, 0), App.Vector(-472.678125, 504.825, 0)),
    Part.LineSegment(App.Vector(-472.678125, 504.825, 0), App.Vector(-453.628125, 485.775, 0)),
    Part.LineSegment(App.Vector(-453.628125, 485.775, 0), App.Vector(-434.578125, 504.825, 0)),
    Part.LineSegment(App.Vector(-434.578125, 504.825, 0), App.Vector(-453.628125, 523.875, 0)),
    Part.LineSegment(App.Vector(-161.528125, 1882.775, 0), App.Vector(-453.628125, 1590.675, 0)),
    Part.LineSegment(App.Vector(-453.628125, 1590.675, 0), App.Vector(-745.728125, 1882.775, 0)),
    Part.LineSegment(App.Vector(-745.728125, 1882.775, 0), App.Vector(-745.728125, 942.975, 0)),
    Part.LineSegment(App.Vector(-745.728125, 942.975, 0), App.Vector(-453.628125, 1235.075, 0)),
    Part.LineSegment(App.Vector(-453.628125, 1235.075, 0), App.Vector(-161.528125, 942.975, 0)),
    Part.LineSegment(App.Vector(-161.528125, 942.975, 0), App.Vector(-161.528125, 1882.775, 0)),
], False)
sketch10.addConstraint([
    Sketcher.Constraint("Coincident", 0, 2, 1, 1),
    Sketcher.Constraint("Coincident", 1, 2, 2, 1),
    Sketcher.Constraint("Coincident", 2, 2, 0, 1),
    Sketcher.Constraint("Coincident", 3, 2, 4, 1),
    Sketcher.Constraint("Coincident", 4, 2, 5, 1),
    Sketcher.Constraint("Coincident", 5, 2, 3, 1),
    Sketcher.Constraint("Coincident", 6, 2, 7, 1),
    Sketcher.Constraint("Coincident", 7, 2, 8, 1),
    Sketcher.Constraint("Coincident", 8, 2, 9, 1),
    Sketcher.Constraint("Coincident", 9, 2, 6, 1),
    Sketcher.Constraint("Coincident", 10, 2, 11, 1),
    Sketcher.Constraint("Coincident", 11, 2, 12, 1),
    Sketcher.Constraint("Coincident", 12, 2, 13, 1),
    Sketcher.Constraint("Coincident", 13, 2, 14, 1),
    Sketcher.Constraint("Coincident", 14, 2, 15, 1),
    Sketcher.Constraint("Coincident", 15, 2, 10, 1),
    Sketcher.Constraint("Vertical", 0),
    Sketcher.Constraint("Vertical", 5),
    Sketcher.Constraint("Vertical", 12),
    Sketcher.Constraint("Vertical", 15),
    Sketcher.Constraint("Coincident", 6, 2, 1, 2),
    Sketcher.Constraint("Coincident", 8, 2, 3, 2),
    Sketcher.Constraint("Perpendicular", 1, 2),
    Sketcher.Constraint("Perpendicular", 2, 3),
    Sketcher.Constraint("Perpendicular", 3, 4),
    Sketcher.Constraint("Perpendicular", 4, 6),
    Sketcher.Constraint("Perpendicular", 6, 7),
    Sketcher.Constraint("Perpendicular", 7, 8),
    Sketcher.Constraint("Perpendicular", 8, 9),
    Sketcher.Constraint("Perpendicular", 9, 10),
    Sketcher.Constraint("Perpendicular", 10, 11),
    Sketcher.Constraint("Perpendicular", 11, 13),
    Sketcher.Constraint("Perpendicular", 13, 14),
    Sketcher.Constraint("Horizontal", 1, 2, 3, 2),
    Sketcher.Constraint("Horizontal", 0, 2, 4, 2),
    Sketcher.Constraint("Horizontal", 2, 2, 5, 2),
    Sketcher.Constraint("Horizontal", 12, 2, 14, 2),
    Sketcher.Constraint("Horizontal", 11, 2, 15, 2),
    Sketcher.Constraint("Vertical", 9, 2, 10, 2),
    Sketcher.Constraint("Vertical", 2, 2, 11, 2),
    Sketcher.Constraint("DistanceY", 12, 2, 12, 1, Q("37 in")),
    Sketcher.Constraint("DistanceY", 0, 2, 0, 1, Q("21.5 in")),
    Sketcher.Constraint("DistanceX", 0, 2, 4, 2, Q("23 in")),
    Sketcher.Constraint("DistanceY", 2, 2, 10, 2, Q("32 in")),
    Sketcher.Constraint("DistanceX", 0, 2, -1, 1, Q("29.359375 in")),
    Sketcher.Constraint("DistanceY", -1, 1, 0, 2, Q("9.125 in")),
])
pad8 = body6.newObject("PartDesign::Pad", "Pad007")
pad8.Profile = sketch10
pad8.Length = 44.451
pad8.Reversed = True
body2.AllowCompound = True
doc.recompute()

body7 = doc.addObject("PartDesign::Body", "Body006")
body7.BaseFeature = body6
boolean = body2.newObject("PartDesign::Boolean", "Boolean")
boolean.Type = "Cut"
boolean.addObjects([body7])
doc.recompute()
body3.AllowCompound = True
doc.recompute()

body8 = doc.addObject("PartDesign::Body", "Body007")
body8.BaseFeature = body6
boolean2 = body3.newObject("PartDesign::Boolean", "Boolean001")
boolean2.Type = "Cut"
boolean2.addObjects([body8])
doc.recompute()
body4.AllowCompound = True
doc.recompute()

body9 = doc.addObject("PartDesign::Body", "Body008")
body9.BaseFeature = body6
boolean3 = body4.newObject("PartDesign::Boolean", "Boolean002")
boolean3.Type = "Cut"
boolean3.addObjects([body9])
doc.recompute()
body5.AllowCompound = True
doc.recompute()

boolean4 = body5.newObject("PartDesign::Boolean", "Boolean003")
boolean4.Type = "Cut"
boolean4.addObjects([body6])
doc.recompute()

boolean5 = body.newObject("PartDesign::Boolean", "Boolean004")
boolean5.Type = "Fuse"
boolean5.addObjects([body2])
doc.recompute()

boolean6 = body.newObject("PartDesign::Boolean", "Boolean005")
boolean6.Type = "Fuse"
boolean6.addObjects([body3])
doc.recompute()

boolean7 = body.newObject("PartDesign::Boolean", "Boolean006")
boolean7.Type = "Fuse"
boolean7.addObjects([body4])
doc.recompute()

boolean8 = body.newObject("PartDesign::Boolean", "Boolean007")
boolean8.Type = "Fuse"
boolean8.addObjects([body5])

sketch11 = body.newObject("Sketcher::SketchObject", "Sketch010")
sketch11.AttachmentSupport = (doc.getObject("XY_Plane"), [""])
sketch11.MapMode = "FlatFace"
sketch11.AttachmentOffset = App.Placement(App.Vector(0, 0, 39.125 * 25.4), App.Rotation())
sketch11.addGeometry([
    Part.LineSegment(App.Vector(-694.928125, 44.45, 0), App.Vector(-694.928125, 0, 0)),
    Part.LineSegment(App.Vector(-694.928125, 0, 0), App.Vector(-212.328125, 0, 0)),
    Part.LineSegment(App.Vector(-212.328125, 0, 0), App.Vector(-212.328125, 44.45, 0)),
    Part.LineSegment(App.Vector(-212.328125, 44.45, 0), App.Vector(-694.928125, 44.45, 0)),
], False)
sketch11.addConstraint([
    Sketcher.Constraint("Coincident", 0, 2, 1, 1),
    Sketcher.Constraint("Coincident", 1, 2, 2, 1),
    Sketcher.Constraint("Coincident", 2, 2, 3, 1),
    Sketcher.Constraint("Coincident", 3, 2, 0, 1),
    Sketcher.Constraint("Vertical", 0),
    Sketcher.Constraint("Horizontal", 1),
    Sketcher.Constraint("Vertical", 2),
    Sketcher.Constraint("Horizontal", 3),
    Sketcher.Constraint("PointOnObject", 0, 2, -1),
    Sketcher.Constraint("DistanceX", 1, 1, 1, 2, Q("19 in")),
    Sketcher.Constraint("DistanceY", 0, 2, 0, 1, Q("1.75 in")),
    Sketcher.Constraint("DistanceX", 0, 2, -1, 1, Q("27.359375 in")),
])
pad9 = body.newObject("PartDesign::Pad", "Pad008")
pad9.Profile = sketch11
pad9.Length = Q("33 in")

sketch12 = body.newObject("Sketcher::SketchObject", "Sketch011")
sketch12.AttachmentSupport = (doc.getObject("XY_Plane"), [""])
sketch12.MapMode = "FlatFace"
sketch12.AttachmentOffset = App.Placement(App.Vector(0, 0, 11.125 * 25.4), App.Rotation())
sketch12.addGeometry([
    Part.LineSegment(App.Vector(-694.928125, 44.45, 0), App.Vector(-694.928125, 0, 0)),
    Part.LineSegment(App.Vector(-694.928125, 0, 0), App.Vector(-212.328125, 0, 0)),
    Part.LineSegment(App.Vector(-212.328125, 0, 0), App.Vector(-212.328125, 44.45, 0)),
    Part.LineSegment(App.Vector(-212.328125, 44.45, 0), App.Vector(-694.928125, 44.45, 0)),
], False)
sketch12.addConstraint([
    Sketcher.Constraint("Coincident", 0, 2, 1, 1),
    Sketcher.Constraint("Coincident", 1, 2, 2, 1),
    Sketcher.Constraint("Coincident", 2, 2, 3, 1),
    Sketcher.Constraint("Coincident", 3, 2, 0, 1),
    Sketcher.Constraint("Vertical", 0),
    Sketcher.Constraint("Horizontal", 1),
    Sketcher.Constraint("Vertical", 2),
    Sketcher.Constraint("Horizontal", 3),
    Sketcher.Constraint("PointOnObject", 0, 2, -1),
    Sketcher.Constraint("DistanceX", 1, 1, 1, 2, Q("19 in")),
    Sketcher.Constraint("DistanceY", 0, 2, 0, 1, Q("1.75 in")),
    Sketcher.Constraint("DistanceX", 0, 2, -1, 1, Q("27.359375 in")),
])
pad10 = body.newObject("PartDesign::Pad", "Pad009")
pad10.Profile = sketch12
pad10.Length = Q("17.5 in")

doc.recompute()
